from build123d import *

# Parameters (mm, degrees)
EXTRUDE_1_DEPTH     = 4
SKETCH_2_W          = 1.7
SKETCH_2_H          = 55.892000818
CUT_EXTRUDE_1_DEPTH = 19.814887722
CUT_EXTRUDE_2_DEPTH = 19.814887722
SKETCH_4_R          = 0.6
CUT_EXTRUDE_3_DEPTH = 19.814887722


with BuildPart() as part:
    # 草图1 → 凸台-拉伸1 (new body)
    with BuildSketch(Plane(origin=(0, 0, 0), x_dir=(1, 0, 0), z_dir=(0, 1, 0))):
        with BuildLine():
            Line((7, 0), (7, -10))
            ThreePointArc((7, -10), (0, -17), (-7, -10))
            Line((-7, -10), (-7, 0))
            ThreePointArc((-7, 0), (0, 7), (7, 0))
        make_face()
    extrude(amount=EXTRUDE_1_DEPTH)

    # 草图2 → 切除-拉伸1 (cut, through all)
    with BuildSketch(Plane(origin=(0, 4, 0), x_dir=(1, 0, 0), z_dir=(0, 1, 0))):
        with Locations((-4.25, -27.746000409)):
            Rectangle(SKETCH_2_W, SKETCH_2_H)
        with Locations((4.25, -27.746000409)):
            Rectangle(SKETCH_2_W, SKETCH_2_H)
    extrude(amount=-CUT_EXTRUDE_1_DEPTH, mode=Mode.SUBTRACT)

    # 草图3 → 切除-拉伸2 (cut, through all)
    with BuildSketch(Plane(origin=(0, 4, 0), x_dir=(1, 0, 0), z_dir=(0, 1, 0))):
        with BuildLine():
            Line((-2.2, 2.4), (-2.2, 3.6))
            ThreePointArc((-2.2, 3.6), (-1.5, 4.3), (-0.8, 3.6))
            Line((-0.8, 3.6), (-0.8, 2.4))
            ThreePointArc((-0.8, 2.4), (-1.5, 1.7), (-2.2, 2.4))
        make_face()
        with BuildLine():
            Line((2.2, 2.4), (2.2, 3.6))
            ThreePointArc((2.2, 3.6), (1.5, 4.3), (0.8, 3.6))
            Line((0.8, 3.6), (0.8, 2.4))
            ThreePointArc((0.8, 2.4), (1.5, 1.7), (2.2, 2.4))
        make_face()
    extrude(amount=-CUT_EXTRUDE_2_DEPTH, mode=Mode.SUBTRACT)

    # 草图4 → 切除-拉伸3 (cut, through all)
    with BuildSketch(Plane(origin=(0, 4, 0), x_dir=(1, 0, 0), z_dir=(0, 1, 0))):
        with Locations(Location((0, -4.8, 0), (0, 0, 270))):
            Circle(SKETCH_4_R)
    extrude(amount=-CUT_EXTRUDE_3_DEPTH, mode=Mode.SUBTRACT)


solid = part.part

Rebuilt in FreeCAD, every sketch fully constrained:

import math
import FreeCAD as App
import Part
import Sketcher

V = App.Vector
Q = App.Units.Quantity


def add_polygon(sketch, points):
    """Adds a closed chain of lines whose ends are joined by coincident constraints."""
    first, n = sketch.GeometryCount, len(points)
    for a, b in zip(points, points[1:] + points[:1]):
        sketch.addGeometry(Part.LineSegment(App.Vector(*a, 0), App.Vector(*b, 0)), False)
    for i in range(n):
        sketch.addConstraint(Sketcher.Constraint("Coincident", first + i, 2, first + (i + 1) % n, 1))

doc = App.newDocument("Part")
body = doc.addObject("PartDesign::Body", "Body")

# Sketch on XZ plane
sketch1 = body.newObject("Sketcher::SketchObject", "Sketch")
sketch1.AttachmentSupport = (doc.getObject("XZ_Plane"), [""])
sketch1.MapMode = "FlatFace"
sketch1.addGeometry(Part.LineSegment(V(7, 10, 0), V(7, 0, 0)), False)
sketch1.addGeometry(Part.ArcOfCircle(Part.Circle(V(0, 0, 0), V(0, 0, 1), 7), math.radians(180), math.radians(360)), False)
sketch1.addGeometry(Part.LineSegment(V(-7, 0, 0), V(-7, 10, 0)), False)
sketch1.addGeometry(Part.ArcOfCircle(Part.Circle(V(0, 10, 0), V(0, 0, 1), 7), math.radians(0), math.radians(180)), False)
sketch1.addConstraint(Sketcher.Constraint("Tangent", 0, 2, 1, 2))
sketch1.addConstraint(Sketcher.Constraint("Tangent", 1, 1, 2, 1))
sketch1.addConstraint(Sketcher.Constraint("Tangent", 2, 2, 3, 2))
sketch1.addConstraint(Sketcher.Constraint("Tangent", 3, 1, 0, 1))
sketch1.addConstraint(Sketcher.Constraint("Vertical", 0))
sketch1.addConstraint(Sketcher.Constraint("Vertical", 2))
sketch1.addConstraint(Sketcher.Constraint("Coincident", 1, 3, -1, 1))
sketch1.addConstraint(Sketcher.Constraint("Radius", 1, Q("7 mm")))
sketch1.addConstraint(Sketcher.Constraint("DistanceY", 0, 2, 0, 1, Q("10 mm")))
pad1 = body.newObject("PartDesign::Pad", "Pad")
pad1.Profile = sketch1
pad1.Length = 4
pad1.Reversed = True

# Sketch on XZ plane
sketch2 = body.newObject("Sketcher::SketchObject", "Sketch001")
sketch2.AttachmentSupport = (doc.getObject("XZ_Plane"), [""])
sketch2.MapMode = "FlatFace"
sketch2.AttachmentOffset = App.Placement(V(0, 0, -4), App.Rotation())
add_polygon(sketch2, [(-5.1, -0.2), (-5.1, 55.692001), (-3.4, 55.692001), (-3.4, -0.2)])  # lines 0-3
add_polygon(sketch2, [(3.4, -0.2), (3.4, 55.692001), (5.1, 55.692001), (5.1, -0.2)])  # lines 4-7
sketch2.addConstraint(Sketcher.Constraint("Vertical", 0))
sketch2.addConstraint(Sketcher.Constraint("Horizontal", 1))
sketch2.addConstraint(Sketcher.Constraint("Vertical", 2))
sketch2.addConstraint(Sketcher.Constraint("Horizontal", 3))
sketch2.addConstraint(Sketcher.Constraint("Vertical", 4))
sketch2.addConstraint(Sketcher.Constraint("Horizontal", 5))
sketch2.addConstraint(Sketcher.Constraint("Vertical", 6))
sketch2.addConstraint(Sketcher.Constraint("Horizontal", 7))
sketch2.addConstraint(Sketcher.Constraint("Symmetric", 1, 2, 4, 2, -2))
sketch2.addConstraint(Sketcher.Constraint("Symmetric", 3, 2, 6, 2, -2))
sketch2.addConstraint(Sketcher.Constraint("DistanceX", 1, 1, 1, 2, Q("1.7 mm")))
sketch2.addConstraint(Sketcher.Constraint("DistanceX", 0, 2, -1, 1, Q("5.1 mm")))
sketch2.addConstraint(Sketcher.Constraint("DistanceY", 2, 2, -1, 1, Q("0.2 mm")))
sketch2.addConstraint(Sketcher.Constraint("DistanceY", 0, 1, 0, 2, Q("55.892001 mm")))
pocket1 = body.newObject("PartDesign::Pocket", "Pocket")
pocket1.Profile = sketch2
pocket1.Type = "ThroughAll"
pocket1.Reversed = True

# Sketch on XZ plane
sketch3 = body.newObject("Sketcher::SketchObject", "Sketch002")
sketch3.AttachmentSupport = (doc.getObject("XZ_Plane"), [""])
sketch3.MapMode = "FlatFace"
sketch3.AttachmentOffset = App.Placement(V(0, 0, -4), App.Rotation())
sketch3.addGeometry(Part.LineSegment(V(-2.2, -3.6, 0), V(-2.2, -2.4, 0)), False)
sketch3.addGeometry(Part.ArcOfCircle(Part.Circle(V(-1.5, -2.4, 0), V(0, 0, 1), 0.7), math.radians(0), math.radians(180)), False)
sketch3.addGeometry(Part.LineSegment(V(-0.8, -2.4, 0), V(-0.8, -3.6, 0)), False)
sketch3.addGeometry(Part.ArcOfCircle(Part.Circle(V(-1.5, -3.6, 0), V(0, 0, 1), 0.7), math.radians(180), math.radians(360)), False)
sketch3.addGeometry(Part.LineSegment(V(2.2, -2.4, 0), V(2.2, -3.6, 0)), False)
sketch3.addGeometry(Part.ArcOfCircle(Part.Circle(V(1.5, -3.6, 0), V(0, 0, 1), 0.7), math.radians(180), math.radians(360)), False)
sketch3.addGeometry(Part.LineSegment(V(0.8, -3.6, 0), V(0.8, -2.4, 0)), False)
sketch3.addGeometry(Part.ArcOfCircle(Part.Circle(V(1.5, -2.4, 0), V(0, 0, 1), 0.7), math.radians(0), math.radians(180)), False)
sketch3.addConstraint(Sketcher.Constraint("Tangent", 0, 2, 1, 2))
sketch3.addConstraint(Sketcher.Constraint("Tangent", 1, 1, 2, 1))
sketch3.addConstraint(Sketcher.Constraint("Tangent", 2, 2, 3, 2))
sketch3.addConstraint(Sketcher.Constraint("Tangent", 3, 1, 0, 1))
sketch3.addConstraint(Sketcher.Constraint("Tangent", 4, 2, 5, 2))
sketch3.addConstraint(Sketcher.Constraint("Tangent", 5, 1, 6, 1))
sketch3.addConstraint(Sketcher.Constraint("Tangent", 6, 2, 7, 2))
sketch3.addConstraint(Sketcher.Constraint("Tangent", 7, 1, 4, 1))
sketch3.addConstraint(Sketcher.Constraint("Vertical", 0))
sketch3.addConstraint(Sketcher.Constraint("Vertical", 2))
sketch3.addConstraint(Sketcher.Constraint("Vertical", 4))
sketch3.addConstraint(Sketcher.Constraint("Vertical", 6))
sketch3.addConstraint(Sketcher.Constraint("Equal", 3, 5))
sketch3.addConstraint(Sketcher.Constraint("Symmetric", 3, 3, 5, 3, -2))
sketch3.addConstraint(Sketcher.Constraint("Horizontal", 1, 3, 7, 3))
sketch3.addConstraint(Sketcher.Constraint("Radius", 1, Q("0.7 mm")))
sketch3.addConstraint(Sketcher.Constraint("DistanceY", 0, 1, 0, 2, Q("1.2 mm")))
sketch3.addConstraint(Sketcher.Constraint("DistanceX", 3, 3, 5, 3, Q("3 mm")))
sketch3.addConstraint(Sketcher.Constraint("DistanceY", 1, 3, -1, 1, Q("2.4 mm")))
pocket2 = body.newObject("PartDesign::Pocket", "Pocket001")
pocket2.Profile = sketch3
pocket2.Type = "ThroughAll"
pocket2.Reversed = True

# Sketch on XZ plane
sketch4 = body.newObject("Sketcher::SketchObject", "Sketch003")
sketch4.AttachmentSupport = (doc.getObject("XZ_Plane"), [""])
sketch4.MapMode = "FlatFace"
sketch4.AttachmentOffset = App.Placement(V(0, 0, -4), App.Rotation())
sketch4.addGeometry(Part.Circle(V(0, 4.8, 0), V(0, 0, 1), 0.6), False)
sketch4.addConstraint(Sketcher.Constraint("PointOnObject", 0, 3, -2))
sketch4.addConstraint(Sketcher.Constraint("Diameter", 0, Q("1.2 mm")))
sketch4.addConstraint(Sketcher.Constraint("DistanceY", -1, 1, 0, 3, Q("4.8 mm")))
pocket3 = body.newObject("PartDesign::Pocket", "Pocket002")
pocket3.Profile = sketch4
pocket3.Type = "ThroughAll"
pocket3.Reversed = True

doc.recompute()
